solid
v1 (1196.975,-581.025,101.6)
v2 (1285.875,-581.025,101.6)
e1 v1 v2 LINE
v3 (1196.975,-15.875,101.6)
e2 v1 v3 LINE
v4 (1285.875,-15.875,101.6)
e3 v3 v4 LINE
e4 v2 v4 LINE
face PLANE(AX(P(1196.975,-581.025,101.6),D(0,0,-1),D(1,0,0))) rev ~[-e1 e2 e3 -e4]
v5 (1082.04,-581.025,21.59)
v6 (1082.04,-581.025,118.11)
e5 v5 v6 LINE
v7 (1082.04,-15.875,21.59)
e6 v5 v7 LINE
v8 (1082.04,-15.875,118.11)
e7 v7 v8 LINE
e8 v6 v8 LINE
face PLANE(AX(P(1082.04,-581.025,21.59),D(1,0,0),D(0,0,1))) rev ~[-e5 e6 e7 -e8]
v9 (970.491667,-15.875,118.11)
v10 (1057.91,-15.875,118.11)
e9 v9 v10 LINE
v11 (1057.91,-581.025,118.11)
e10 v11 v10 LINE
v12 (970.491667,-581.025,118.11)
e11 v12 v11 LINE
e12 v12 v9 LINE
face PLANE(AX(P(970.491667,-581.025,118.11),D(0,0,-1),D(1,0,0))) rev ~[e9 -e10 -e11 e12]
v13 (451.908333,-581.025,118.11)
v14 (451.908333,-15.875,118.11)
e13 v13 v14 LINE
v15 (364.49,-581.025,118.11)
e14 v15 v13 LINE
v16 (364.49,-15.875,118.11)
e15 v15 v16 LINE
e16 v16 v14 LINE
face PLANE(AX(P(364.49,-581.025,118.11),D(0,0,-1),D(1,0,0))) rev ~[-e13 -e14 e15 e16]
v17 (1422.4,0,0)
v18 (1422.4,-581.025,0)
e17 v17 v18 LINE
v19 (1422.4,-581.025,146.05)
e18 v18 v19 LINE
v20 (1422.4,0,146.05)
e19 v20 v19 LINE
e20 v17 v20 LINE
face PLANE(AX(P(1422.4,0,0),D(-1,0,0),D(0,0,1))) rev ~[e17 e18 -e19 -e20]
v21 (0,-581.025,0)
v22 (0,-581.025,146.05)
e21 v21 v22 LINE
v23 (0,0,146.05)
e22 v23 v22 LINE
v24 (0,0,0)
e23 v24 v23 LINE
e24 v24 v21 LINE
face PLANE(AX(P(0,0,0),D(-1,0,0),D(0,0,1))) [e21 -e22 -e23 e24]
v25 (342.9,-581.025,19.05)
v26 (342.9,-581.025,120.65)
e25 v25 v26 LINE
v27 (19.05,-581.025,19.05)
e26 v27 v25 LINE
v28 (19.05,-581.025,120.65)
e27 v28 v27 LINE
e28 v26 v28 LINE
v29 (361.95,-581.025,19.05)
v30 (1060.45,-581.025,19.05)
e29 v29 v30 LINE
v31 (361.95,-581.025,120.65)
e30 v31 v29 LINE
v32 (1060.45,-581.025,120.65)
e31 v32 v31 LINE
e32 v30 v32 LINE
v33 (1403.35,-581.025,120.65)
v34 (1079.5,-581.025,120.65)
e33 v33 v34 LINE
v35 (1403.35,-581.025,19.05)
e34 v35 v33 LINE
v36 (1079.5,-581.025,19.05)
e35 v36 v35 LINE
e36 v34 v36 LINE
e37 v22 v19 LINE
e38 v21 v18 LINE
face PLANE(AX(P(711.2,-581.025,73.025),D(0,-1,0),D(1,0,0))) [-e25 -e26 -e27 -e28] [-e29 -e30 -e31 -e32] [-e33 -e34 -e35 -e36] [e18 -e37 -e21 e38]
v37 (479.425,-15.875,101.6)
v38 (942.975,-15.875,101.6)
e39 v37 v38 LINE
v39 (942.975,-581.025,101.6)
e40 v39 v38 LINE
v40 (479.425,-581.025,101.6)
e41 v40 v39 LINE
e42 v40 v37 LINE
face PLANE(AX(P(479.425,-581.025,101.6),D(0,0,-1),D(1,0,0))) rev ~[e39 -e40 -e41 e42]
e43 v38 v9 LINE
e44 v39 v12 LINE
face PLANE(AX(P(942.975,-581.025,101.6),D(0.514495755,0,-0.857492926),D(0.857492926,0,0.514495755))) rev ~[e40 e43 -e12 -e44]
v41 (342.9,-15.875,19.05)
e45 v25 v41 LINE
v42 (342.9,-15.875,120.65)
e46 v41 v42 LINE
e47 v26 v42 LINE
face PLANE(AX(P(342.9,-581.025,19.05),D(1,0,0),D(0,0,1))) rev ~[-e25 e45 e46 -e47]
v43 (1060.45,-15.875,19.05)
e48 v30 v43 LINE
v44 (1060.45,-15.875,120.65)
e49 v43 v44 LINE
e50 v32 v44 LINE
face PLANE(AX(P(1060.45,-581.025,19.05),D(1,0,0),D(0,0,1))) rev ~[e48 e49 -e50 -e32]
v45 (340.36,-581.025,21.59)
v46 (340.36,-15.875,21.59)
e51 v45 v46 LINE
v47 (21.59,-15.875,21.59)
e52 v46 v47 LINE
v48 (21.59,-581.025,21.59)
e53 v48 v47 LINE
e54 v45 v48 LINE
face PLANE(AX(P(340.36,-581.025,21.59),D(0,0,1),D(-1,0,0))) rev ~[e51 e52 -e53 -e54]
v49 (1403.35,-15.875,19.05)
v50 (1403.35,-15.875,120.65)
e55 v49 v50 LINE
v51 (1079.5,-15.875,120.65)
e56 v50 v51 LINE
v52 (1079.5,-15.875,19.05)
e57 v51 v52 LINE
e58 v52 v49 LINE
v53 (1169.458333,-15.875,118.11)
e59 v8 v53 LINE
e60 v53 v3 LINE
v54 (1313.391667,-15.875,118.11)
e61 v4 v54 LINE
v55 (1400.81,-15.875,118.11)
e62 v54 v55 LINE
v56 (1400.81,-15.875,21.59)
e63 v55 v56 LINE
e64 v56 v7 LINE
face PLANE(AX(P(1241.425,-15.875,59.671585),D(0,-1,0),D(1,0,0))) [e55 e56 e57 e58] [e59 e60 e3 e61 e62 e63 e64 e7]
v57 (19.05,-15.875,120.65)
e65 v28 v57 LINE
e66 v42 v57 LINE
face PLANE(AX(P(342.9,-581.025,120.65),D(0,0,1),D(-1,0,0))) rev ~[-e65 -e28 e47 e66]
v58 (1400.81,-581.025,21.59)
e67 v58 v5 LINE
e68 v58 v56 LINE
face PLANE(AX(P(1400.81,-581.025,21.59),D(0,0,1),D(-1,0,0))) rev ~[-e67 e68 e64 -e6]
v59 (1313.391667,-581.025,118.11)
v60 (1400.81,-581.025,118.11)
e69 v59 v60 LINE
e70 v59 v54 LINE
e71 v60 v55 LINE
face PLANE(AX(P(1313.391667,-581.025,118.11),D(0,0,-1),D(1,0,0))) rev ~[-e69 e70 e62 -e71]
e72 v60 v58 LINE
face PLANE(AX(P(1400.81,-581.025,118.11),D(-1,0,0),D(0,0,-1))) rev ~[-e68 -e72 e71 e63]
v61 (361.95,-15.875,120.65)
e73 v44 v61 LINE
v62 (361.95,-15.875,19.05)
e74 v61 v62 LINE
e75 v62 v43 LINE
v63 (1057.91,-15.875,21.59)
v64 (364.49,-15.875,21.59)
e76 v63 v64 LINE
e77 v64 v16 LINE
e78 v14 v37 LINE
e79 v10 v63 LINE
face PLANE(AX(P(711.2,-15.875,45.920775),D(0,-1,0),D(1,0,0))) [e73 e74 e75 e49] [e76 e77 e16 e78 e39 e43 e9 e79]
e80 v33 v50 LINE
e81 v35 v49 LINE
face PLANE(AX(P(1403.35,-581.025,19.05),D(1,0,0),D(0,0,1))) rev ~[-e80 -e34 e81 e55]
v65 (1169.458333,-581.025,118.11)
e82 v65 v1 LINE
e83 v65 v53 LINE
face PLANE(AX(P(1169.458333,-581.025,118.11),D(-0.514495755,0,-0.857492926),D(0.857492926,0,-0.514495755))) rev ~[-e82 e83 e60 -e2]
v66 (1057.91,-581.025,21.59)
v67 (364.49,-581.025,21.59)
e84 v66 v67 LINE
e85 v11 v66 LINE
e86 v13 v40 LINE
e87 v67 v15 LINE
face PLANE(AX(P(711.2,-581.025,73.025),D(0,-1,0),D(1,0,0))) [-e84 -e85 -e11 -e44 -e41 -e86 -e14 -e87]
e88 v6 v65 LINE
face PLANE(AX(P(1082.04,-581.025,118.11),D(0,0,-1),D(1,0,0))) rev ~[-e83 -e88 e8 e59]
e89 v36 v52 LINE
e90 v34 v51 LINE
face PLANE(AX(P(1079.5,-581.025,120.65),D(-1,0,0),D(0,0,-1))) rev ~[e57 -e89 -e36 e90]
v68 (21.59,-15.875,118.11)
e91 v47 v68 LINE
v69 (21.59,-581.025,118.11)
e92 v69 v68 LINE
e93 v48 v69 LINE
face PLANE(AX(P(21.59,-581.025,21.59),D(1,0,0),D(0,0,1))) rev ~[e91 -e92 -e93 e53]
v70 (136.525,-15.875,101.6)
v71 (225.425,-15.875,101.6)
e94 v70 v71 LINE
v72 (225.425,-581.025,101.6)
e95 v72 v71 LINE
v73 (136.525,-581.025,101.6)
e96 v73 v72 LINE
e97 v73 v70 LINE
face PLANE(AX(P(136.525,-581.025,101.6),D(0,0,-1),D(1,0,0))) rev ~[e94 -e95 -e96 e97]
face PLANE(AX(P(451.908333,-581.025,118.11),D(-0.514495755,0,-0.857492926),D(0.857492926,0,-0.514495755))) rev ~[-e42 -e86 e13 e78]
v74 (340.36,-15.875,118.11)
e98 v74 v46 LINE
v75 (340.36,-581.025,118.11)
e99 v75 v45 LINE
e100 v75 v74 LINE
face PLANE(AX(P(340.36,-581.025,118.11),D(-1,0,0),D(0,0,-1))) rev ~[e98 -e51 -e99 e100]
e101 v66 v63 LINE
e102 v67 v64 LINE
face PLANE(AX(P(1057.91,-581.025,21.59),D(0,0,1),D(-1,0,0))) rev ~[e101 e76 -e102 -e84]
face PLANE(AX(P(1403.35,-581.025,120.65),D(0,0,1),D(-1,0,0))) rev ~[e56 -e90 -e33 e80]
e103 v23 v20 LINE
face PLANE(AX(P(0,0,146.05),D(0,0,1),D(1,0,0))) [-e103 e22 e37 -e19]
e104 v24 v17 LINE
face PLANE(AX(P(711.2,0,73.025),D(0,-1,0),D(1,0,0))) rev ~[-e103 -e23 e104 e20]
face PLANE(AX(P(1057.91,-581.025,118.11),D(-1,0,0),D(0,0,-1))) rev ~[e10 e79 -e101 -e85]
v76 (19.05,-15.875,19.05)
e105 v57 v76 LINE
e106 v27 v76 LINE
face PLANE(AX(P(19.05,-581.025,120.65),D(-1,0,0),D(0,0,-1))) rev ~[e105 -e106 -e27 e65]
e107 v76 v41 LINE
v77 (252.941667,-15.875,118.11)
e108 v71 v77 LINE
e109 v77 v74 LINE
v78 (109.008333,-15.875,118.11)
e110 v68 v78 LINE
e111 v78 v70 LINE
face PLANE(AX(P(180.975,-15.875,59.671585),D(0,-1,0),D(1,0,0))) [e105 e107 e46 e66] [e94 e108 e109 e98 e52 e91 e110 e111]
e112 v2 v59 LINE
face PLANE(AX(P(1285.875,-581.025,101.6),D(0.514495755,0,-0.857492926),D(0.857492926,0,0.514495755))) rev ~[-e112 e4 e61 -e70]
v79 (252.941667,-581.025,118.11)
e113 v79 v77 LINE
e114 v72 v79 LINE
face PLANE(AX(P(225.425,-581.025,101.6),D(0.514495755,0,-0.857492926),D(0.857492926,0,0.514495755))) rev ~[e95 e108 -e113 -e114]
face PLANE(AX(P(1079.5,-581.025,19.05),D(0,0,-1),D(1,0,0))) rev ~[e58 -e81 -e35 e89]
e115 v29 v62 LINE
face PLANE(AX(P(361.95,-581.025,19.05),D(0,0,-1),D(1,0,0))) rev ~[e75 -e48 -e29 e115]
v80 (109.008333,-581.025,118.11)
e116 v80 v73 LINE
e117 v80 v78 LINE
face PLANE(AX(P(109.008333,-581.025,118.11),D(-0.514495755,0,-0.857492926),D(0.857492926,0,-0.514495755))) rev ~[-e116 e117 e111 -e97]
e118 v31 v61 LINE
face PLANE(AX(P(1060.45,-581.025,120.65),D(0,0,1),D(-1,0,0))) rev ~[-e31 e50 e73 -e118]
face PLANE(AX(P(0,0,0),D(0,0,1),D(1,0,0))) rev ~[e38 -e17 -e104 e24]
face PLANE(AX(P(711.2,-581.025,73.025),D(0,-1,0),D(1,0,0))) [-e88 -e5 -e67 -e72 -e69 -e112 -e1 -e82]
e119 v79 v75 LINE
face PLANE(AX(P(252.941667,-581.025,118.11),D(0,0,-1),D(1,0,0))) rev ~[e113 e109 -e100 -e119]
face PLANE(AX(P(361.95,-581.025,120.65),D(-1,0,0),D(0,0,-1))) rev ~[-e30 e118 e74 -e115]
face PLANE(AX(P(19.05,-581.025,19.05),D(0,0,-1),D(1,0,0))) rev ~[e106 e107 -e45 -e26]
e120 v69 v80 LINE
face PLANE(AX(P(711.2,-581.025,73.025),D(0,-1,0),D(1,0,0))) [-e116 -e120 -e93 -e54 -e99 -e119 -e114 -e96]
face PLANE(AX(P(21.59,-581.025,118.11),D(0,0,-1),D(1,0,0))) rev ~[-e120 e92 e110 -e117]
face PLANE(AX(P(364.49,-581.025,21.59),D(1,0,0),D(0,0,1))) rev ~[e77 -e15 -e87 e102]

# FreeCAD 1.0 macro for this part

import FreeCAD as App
import Part
import Sketcher

V = App.Vector
Q = App.Units.Quantity


def add_polygon(sketch, points):
    """Adds a closed chain of lines whose ends are joined by coincident constraints."""
    first, n = sketch.GeometryCount, len(points)
    for a, b in zip(points, points[1:] + points[:1]):
        sketch.addGeometry(Part.LineSegment(App.Vector(*a, 0), App.Vector(*b, 0)), False)
    for i in range(n):
        sketch.addConstraint(Sketcher.Constraint("Coincident", first + i, 2, first + (i + 1) % n, 1))

doc = App.newDocument("Part")
body = doc.addObject("PartDesign::Body", "Body")

sketch1 = body.newObject("Sketcher::SketchObject", "Sketch")
sketch1.AttachmentSupport = (doc.getObject("XZ_Plane"), [""])
sketch1.MapMode = "FlatFace"
add_polygon(sketch1, [(0, 146), (0, 0), (1422, 0), (1422, 146)])
sketch1.addConstraint([
    Sketcher.Constraint("Vertical", 0),
    Sketcher.Constraint("Horizontal", 1),
    Sketcher.Constraint("Vertical", 2),
    Sketcher.Constraint("Horizontal", 3),
    Sketcher.Constraint("Coincident", 0, 2, -1, 1),
    Sketcher.Constraint("DistanceX", 1, 1, 1, 2, Q("56 in")),
    Sketcher.Constraint("DistanceY", 0, 2, 0, 1, Q("5.75 in")),
])
pad1 = body.newObject("PartDesign::Pad", "Pad")
pad1.Profile = sketch1
pad1.Length = Q("22.875 in")

sketch2 = body.newObject("Sketcher::SketchObject", "Sketch001")
sketch2.AttachmentSupport = (doc.getObject("XZ_Plane"), [""])
sketch2.MapMode = "FlatFace"
sketch2.AttachmentOffset = App.Placement(V(0, 0, 22.875 * 25.4), App.Rotation())
add_polygon(sketch2, [(19, 121), (19, 19), (343, 19), (343, 121)])
add_polygon(sketch2, [(340, 118), (340, 22), (22, 22), (22, 118), (109, 118), (137, 102), (225, 102), (253, 118)])
add_polygon(sketch2, [(362, 121), (362, 19), (1060, 19), (1060, 121)])
add_polygon(sketch2, [(970, 118), (1058, 118), (1058, 22), (364, 22), (364, 118), (452, 118), (479, 102), (943, 102)])
add_polygon(sketch2, [(1080, 121), (1080, 19), (1403, 19), (1403, 121)])
add_polygon(sketch2, [(1401, 118), (1401, 22), (1082, 22), (1082, 118), (1169, 118), (1197, 102), (1286, 102), (1313, 118)])
sketch2.addConstraint([
    Sketcher.Constraint("Vertical", 0),
    Sketcher.Constraint("Horizontal", 1),
    Sketcher.Constraint("Vertical", 2),
    Sketcher.Constraint("Horizontal", 3),
    Sketcher.Constraint("Vertical", 4),
    Sketcher.Constraint("Horizontal", 5),
    Sketcher.Constraint("Vertical", 6),
    Sketcher.Constraint("Horizontal", 7),
    Sketcher.Constraint("Horizontal", 9),
    Sketcher.Constraint("Horizontal", 11),
    Sketcher.Constraint("Vertical", 12),
    Sketcher.Constraint("Horizontal", 13),
    Sketcher.Constraint("Vertical", 14),
    Sketcher.Constraint("Horizontal", 15),
    Sketcher.Constraint("Horizontal", 16),
    Sketcher.Constraint("Vertical", 17),
    Sketcher.Constraint("Horizontal", 18),
    Sketcher.Constraint("Vertical", 19),
    Sketcher.Constraint("Horizontal", 20),
    Sketcher.Constraint("Horizontal", 22),
    Sketcher.Constraint("Vertical", 24),
    Sketcher.Constraint("Horizontal", 25),
    Sketcher.Constraint("Vertical", 26),
    Sketcher.Constraint("Horizontal", 27),
    Sketcher.Constraint("Vertical", 28),
    Sketcher.Constraint("Horizontal", 29),
    Sketcher.Constraint("Vertical", 30),
    Sketcher.Constraint("Horizontal", 31),
    Sketcher.Constraint("Horizontal", 33),
    Sketcher.Constraint("Horizontal", 35),
    Sketcher.Constraint("Parallel", 8, 21),
    Sketcher.Constraint("Parallel", 10, 23),
    Sketcher.Constraint("Parallel", 21, 32),
    Sketcher.Constraint("Parallel", 23, 34),
    Sketcher.Constraint("Horizontal", 7, 2, 10, 2),
    Sketcher.Constraint("Horizontal", 1, 2, 12, 2),
    Sketcher.Constraint("Horizontal", 3, 2, 14, 2),
    Sketcher.Constraint("Horizontal", 11, 2, 16, 2),
    Sketcher.Constraint("Horizontal", 5, 2, 17, 2),
    Sketcher.Constraint("Horizontal", 16, 2, 19, 2),
    Sketcher.Constraint("Horizontal", 9, 2, 21, 2),
    Sketcher.Constraint("Horizontal", 13, 2, 24, 2),
    Sketcher.Constraint("Horizontal", 15, 2, 26, 2),
    Sketcher.Constraint("Horizontal", 18, 2, 28, 2),
    Sketcher.Constraint("Horizontal", 23, 2, 30, 2),
    Sketcher.Constraint("Horizontal", 22, 2, 32, 2),
    Sketcher.Constraint("Horizontal", 31, 2, 34, 2),
    Sketcher.Constraint("Equal", 7, 11),
    Sketcher.Constraint("Equal", 11, 16),
    Sketcher.Constraint("Equal", 16, 20),
    Sketcher.Constraint("Equal", 3, 25),
    Sketcher.Constraint("Equal", 5, 29),
    Sketcher.Constraint("Equal", 20, 31),
    Sketcher.Constraint("Equal", 9, 33),
    Sketcher.Constraint("Equal", 8, 10),
    Sketcher.Constraint("DistanceY", 0, 2, 0, 1, Q("4 in")),
    Sketcher.Constraint("DistanceX", 9, 1, 9, 2, Q("3.5 in")),
    Sketcher.Constraint("DistanceX", 13, 1, 13, 2, Q("27.5 in")),
    Sketcher.Constraint("DistanceX", 18, 2, 18, 1, Q("27.3 in")),
    Sketcher.Constraint("DistanceY", 4, 2, 4, 1, Q("3.8 in")),
    Sketcher.Constraint("DistanceY", -1, 1, 8, 2, Q("4 in")),
    Sketcher.Constraint("DistanceX", 1, 1, 1, 2, Q("12.75 in")),
    Sketcher.Constraint("DistanceX", 5, 2, 5, 1, Q("12.55 in")),
    Sketcher.Constraint("DistanceX", -1, 1, 1, 2, Q("13.5 in")),
    Sketcher.Constraint("DistanceX", -1, 1, 4, 2, Q("13.4 in")),
    Sketcher.Constraint("DistanceX", -1, 1, 24, 2, Q("42.5 in")),
    Sketcher.Constraint("DistanceX", -1, 1, 29, 2, Q("42.6 in")),
    Sketcher.Constraint("DistanceY", 1, 2, 4, 2, Q("0.1 in")),
    Sketcher.Constraint("DistanceX", 16, 2, 14, 2, Q("0.1 in")),
    Sketcher.Constraint("DistanceX", 13, 2, 25, 2, Q("13.5 in")),
    Sketcher.Constraint("DistanceY", -1, 1, 0, 2, Q("0.75 in")),
    Sketcher.Constraint("Distance", 8, 32.089672),
])
pocket1 = body.newObject("PartDesign::Pocket", "Pocket")
pocket1.Profile = sketch2
pocket1.Length = Q("22.25 in")

doc.recompute()
